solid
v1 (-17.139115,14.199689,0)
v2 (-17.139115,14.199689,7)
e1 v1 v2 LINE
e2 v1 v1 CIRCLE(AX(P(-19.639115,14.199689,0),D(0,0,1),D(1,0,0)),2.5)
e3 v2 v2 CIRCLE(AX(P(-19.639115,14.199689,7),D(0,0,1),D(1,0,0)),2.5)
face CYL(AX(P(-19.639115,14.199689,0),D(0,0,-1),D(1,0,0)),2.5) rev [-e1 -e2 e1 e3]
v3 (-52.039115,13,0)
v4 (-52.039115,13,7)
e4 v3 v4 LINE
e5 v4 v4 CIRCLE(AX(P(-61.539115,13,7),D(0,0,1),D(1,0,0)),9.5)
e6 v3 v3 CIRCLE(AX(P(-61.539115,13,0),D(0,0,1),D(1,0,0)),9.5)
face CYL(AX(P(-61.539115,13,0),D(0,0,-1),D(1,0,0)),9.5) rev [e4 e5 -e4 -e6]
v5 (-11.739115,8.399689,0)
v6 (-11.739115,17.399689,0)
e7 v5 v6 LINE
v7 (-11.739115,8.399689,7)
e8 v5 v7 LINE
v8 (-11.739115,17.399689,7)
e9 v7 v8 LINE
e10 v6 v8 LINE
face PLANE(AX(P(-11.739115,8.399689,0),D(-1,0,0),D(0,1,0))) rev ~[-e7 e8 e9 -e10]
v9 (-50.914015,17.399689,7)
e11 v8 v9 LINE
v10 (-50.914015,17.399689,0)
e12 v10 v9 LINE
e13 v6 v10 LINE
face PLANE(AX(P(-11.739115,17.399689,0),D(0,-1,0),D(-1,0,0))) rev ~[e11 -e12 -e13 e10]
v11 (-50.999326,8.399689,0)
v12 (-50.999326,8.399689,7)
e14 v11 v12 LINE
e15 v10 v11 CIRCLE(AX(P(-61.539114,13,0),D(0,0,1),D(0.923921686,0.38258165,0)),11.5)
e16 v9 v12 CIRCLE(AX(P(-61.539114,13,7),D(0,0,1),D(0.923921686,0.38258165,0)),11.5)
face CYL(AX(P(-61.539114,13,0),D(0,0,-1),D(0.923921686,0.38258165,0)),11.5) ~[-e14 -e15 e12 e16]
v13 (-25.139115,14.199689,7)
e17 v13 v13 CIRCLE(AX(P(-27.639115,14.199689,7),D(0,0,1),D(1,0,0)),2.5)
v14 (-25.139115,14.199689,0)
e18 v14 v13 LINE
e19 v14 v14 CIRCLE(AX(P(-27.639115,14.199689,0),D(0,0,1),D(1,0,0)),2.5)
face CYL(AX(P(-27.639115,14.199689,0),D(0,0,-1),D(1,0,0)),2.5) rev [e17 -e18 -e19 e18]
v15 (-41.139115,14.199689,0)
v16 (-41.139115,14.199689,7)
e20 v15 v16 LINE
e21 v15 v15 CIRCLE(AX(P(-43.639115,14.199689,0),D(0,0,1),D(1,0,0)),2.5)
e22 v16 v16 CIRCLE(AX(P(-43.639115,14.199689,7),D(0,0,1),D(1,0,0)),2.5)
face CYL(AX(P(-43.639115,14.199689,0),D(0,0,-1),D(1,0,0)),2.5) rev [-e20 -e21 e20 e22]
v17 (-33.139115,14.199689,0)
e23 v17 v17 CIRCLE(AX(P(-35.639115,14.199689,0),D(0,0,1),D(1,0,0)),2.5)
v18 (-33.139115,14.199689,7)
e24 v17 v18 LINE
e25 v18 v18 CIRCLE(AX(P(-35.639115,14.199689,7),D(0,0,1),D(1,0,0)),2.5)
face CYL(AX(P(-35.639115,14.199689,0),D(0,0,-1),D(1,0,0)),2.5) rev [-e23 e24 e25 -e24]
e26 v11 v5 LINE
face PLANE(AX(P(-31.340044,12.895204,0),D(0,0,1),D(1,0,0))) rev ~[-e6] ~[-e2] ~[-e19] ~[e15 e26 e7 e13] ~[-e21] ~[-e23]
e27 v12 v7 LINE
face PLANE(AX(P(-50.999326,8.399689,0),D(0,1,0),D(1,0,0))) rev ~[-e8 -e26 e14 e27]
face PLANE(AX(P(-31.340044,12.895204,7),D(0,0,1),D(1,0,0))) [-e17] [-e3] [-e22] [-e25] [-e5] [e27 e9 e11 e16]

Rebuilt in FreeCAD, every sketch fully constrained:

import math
import FreeCAD as App
import Part
import Sketcher

V = App.Vector
Q = App.Units.Quantity

doc = App.newDocument("Part")
body = doc.addObject("PartDesign::Body", "Body")

sketch1 = doc.addObject("Sketcher::SketchObject", "Sketch")
body.addObject(sketch1)
sketch1.AttachmentSupport = (doc.XY_Plane, [""])
sketch1.MapMode = "FlatFace"
sketch1.addGeometry([
    Part.LineSegment(V(-11.7, 17.4, 0), V(-50.9, 17.4, 0)),
    Part.ArcOfCircle(Part.Circle(V(-61.5, 13, 0), V(0, 0, 1), 11.5), math.radians(22), math.radians(336)),
    Part.LineSegment(V(-51, 8.4, 0), V(-11.7, 8.4, 0)),
    Part.LineSegment(V(-11.7, 8.4, 0), V(-11.7, 17.4, 0)),
    Part.Circle(V(-43.6, 14.2, 0), V(0, 0, 1), 2.5),
    Part.Circle(V(-35.6, 14.2, 0), V(0, 0, 1), 2.5),
    Part.Circle(V(-27.6, 14.2, 0), V(0, 0, 1), 2.5),
    Part.Circle(V(-19.6, 14.2, 0), V(0, 0, 1), 2.5),
    Part.Circle(V(-61.5, 13, 0), V(0, 0, 1), 9.5),
], False)
sketch1.addConstraint([
    Sketcher.Constraint("Coincident", 0, 2, 1, 1),
    Sketcher.Constraint("Coincident", 1, 2, 2, 1),
    Sketcher.Constraint("Coincident", 2, 2, 3, 1),
    Sketcher.Constraint("Coincident", 3, 2, 0, 1),
    Sketcher.Constraint("Horizontal", 0),
    Sketcher.Constraint("Horizontal", 2),
    Sketcher.Constraint("Vertical", 3),
    Sketcher.Constraint("Coincident", 8, 3, 1, 3),
    Sketcher.Constraint("Equal", 4, 5),
    Sketcher.Constraint("Equal", 5, 6),
    Sketcher.Constraint("Equal", 6, 7),
    Sketcher.Constraint("Horizontal", 4, 3, 5, 3),
    Sketcher.Constraint("Horizontal", 5, 3, 6, 3),
    Sketcher.Constraint("Horizontal", 6, 3, 7, 3),
    Sketcher.Constraint("Diameter", 4, Q("5 mm")),
    Sketcher.Constraint("Diameter", 8, Q("19 mm")),
    Sketcher.Constraint("Radius", 1, Q("11.5 mm")),
    Sketcher.Constraint("DistanceY", 3, 1, 3, 2, Q("9 mm")),
    Sketcher.Constraint("DistanceY", -1, 1, 1, 3, Q("13 mm")),
    Sketcher.Constraint("DistanceX", 4, 3, 5, 3, Q("8 mm")),
    Sketcher.Constraint("DistanceX", 5, 3, 6, 3, Q("8 mm")),
    Sketcher.Constraint("DistanceX", 6, 3, 7, 3, Q("8 mm")),
    Sketcher.Constraint("DistanceX", 1, 3, 4, 3, Q("17.899999 mm")),
    Sketcher.Constraint("DistanceY", 4, 3, 0, 2, Q("3.2 mm")),
    Sketcher.Constraint("DistanceX", 7, 3, 2, 2, Q("7.9 mm")),
    Sketcher.Constraint("DistanceX", 0, 2, 0, 1, Q("39.1749 mm")),
    Sketcher.Constraint("DistanceX", 1, 3, -1, 1, Q("61.539114 mm")),
])
pad1 = doc.addObject("PartDesign::Pad", "Pad")
body.addObject(pad1)
pad1.Profile = sketch1
pad1.Length = 7

doc.recompute()
